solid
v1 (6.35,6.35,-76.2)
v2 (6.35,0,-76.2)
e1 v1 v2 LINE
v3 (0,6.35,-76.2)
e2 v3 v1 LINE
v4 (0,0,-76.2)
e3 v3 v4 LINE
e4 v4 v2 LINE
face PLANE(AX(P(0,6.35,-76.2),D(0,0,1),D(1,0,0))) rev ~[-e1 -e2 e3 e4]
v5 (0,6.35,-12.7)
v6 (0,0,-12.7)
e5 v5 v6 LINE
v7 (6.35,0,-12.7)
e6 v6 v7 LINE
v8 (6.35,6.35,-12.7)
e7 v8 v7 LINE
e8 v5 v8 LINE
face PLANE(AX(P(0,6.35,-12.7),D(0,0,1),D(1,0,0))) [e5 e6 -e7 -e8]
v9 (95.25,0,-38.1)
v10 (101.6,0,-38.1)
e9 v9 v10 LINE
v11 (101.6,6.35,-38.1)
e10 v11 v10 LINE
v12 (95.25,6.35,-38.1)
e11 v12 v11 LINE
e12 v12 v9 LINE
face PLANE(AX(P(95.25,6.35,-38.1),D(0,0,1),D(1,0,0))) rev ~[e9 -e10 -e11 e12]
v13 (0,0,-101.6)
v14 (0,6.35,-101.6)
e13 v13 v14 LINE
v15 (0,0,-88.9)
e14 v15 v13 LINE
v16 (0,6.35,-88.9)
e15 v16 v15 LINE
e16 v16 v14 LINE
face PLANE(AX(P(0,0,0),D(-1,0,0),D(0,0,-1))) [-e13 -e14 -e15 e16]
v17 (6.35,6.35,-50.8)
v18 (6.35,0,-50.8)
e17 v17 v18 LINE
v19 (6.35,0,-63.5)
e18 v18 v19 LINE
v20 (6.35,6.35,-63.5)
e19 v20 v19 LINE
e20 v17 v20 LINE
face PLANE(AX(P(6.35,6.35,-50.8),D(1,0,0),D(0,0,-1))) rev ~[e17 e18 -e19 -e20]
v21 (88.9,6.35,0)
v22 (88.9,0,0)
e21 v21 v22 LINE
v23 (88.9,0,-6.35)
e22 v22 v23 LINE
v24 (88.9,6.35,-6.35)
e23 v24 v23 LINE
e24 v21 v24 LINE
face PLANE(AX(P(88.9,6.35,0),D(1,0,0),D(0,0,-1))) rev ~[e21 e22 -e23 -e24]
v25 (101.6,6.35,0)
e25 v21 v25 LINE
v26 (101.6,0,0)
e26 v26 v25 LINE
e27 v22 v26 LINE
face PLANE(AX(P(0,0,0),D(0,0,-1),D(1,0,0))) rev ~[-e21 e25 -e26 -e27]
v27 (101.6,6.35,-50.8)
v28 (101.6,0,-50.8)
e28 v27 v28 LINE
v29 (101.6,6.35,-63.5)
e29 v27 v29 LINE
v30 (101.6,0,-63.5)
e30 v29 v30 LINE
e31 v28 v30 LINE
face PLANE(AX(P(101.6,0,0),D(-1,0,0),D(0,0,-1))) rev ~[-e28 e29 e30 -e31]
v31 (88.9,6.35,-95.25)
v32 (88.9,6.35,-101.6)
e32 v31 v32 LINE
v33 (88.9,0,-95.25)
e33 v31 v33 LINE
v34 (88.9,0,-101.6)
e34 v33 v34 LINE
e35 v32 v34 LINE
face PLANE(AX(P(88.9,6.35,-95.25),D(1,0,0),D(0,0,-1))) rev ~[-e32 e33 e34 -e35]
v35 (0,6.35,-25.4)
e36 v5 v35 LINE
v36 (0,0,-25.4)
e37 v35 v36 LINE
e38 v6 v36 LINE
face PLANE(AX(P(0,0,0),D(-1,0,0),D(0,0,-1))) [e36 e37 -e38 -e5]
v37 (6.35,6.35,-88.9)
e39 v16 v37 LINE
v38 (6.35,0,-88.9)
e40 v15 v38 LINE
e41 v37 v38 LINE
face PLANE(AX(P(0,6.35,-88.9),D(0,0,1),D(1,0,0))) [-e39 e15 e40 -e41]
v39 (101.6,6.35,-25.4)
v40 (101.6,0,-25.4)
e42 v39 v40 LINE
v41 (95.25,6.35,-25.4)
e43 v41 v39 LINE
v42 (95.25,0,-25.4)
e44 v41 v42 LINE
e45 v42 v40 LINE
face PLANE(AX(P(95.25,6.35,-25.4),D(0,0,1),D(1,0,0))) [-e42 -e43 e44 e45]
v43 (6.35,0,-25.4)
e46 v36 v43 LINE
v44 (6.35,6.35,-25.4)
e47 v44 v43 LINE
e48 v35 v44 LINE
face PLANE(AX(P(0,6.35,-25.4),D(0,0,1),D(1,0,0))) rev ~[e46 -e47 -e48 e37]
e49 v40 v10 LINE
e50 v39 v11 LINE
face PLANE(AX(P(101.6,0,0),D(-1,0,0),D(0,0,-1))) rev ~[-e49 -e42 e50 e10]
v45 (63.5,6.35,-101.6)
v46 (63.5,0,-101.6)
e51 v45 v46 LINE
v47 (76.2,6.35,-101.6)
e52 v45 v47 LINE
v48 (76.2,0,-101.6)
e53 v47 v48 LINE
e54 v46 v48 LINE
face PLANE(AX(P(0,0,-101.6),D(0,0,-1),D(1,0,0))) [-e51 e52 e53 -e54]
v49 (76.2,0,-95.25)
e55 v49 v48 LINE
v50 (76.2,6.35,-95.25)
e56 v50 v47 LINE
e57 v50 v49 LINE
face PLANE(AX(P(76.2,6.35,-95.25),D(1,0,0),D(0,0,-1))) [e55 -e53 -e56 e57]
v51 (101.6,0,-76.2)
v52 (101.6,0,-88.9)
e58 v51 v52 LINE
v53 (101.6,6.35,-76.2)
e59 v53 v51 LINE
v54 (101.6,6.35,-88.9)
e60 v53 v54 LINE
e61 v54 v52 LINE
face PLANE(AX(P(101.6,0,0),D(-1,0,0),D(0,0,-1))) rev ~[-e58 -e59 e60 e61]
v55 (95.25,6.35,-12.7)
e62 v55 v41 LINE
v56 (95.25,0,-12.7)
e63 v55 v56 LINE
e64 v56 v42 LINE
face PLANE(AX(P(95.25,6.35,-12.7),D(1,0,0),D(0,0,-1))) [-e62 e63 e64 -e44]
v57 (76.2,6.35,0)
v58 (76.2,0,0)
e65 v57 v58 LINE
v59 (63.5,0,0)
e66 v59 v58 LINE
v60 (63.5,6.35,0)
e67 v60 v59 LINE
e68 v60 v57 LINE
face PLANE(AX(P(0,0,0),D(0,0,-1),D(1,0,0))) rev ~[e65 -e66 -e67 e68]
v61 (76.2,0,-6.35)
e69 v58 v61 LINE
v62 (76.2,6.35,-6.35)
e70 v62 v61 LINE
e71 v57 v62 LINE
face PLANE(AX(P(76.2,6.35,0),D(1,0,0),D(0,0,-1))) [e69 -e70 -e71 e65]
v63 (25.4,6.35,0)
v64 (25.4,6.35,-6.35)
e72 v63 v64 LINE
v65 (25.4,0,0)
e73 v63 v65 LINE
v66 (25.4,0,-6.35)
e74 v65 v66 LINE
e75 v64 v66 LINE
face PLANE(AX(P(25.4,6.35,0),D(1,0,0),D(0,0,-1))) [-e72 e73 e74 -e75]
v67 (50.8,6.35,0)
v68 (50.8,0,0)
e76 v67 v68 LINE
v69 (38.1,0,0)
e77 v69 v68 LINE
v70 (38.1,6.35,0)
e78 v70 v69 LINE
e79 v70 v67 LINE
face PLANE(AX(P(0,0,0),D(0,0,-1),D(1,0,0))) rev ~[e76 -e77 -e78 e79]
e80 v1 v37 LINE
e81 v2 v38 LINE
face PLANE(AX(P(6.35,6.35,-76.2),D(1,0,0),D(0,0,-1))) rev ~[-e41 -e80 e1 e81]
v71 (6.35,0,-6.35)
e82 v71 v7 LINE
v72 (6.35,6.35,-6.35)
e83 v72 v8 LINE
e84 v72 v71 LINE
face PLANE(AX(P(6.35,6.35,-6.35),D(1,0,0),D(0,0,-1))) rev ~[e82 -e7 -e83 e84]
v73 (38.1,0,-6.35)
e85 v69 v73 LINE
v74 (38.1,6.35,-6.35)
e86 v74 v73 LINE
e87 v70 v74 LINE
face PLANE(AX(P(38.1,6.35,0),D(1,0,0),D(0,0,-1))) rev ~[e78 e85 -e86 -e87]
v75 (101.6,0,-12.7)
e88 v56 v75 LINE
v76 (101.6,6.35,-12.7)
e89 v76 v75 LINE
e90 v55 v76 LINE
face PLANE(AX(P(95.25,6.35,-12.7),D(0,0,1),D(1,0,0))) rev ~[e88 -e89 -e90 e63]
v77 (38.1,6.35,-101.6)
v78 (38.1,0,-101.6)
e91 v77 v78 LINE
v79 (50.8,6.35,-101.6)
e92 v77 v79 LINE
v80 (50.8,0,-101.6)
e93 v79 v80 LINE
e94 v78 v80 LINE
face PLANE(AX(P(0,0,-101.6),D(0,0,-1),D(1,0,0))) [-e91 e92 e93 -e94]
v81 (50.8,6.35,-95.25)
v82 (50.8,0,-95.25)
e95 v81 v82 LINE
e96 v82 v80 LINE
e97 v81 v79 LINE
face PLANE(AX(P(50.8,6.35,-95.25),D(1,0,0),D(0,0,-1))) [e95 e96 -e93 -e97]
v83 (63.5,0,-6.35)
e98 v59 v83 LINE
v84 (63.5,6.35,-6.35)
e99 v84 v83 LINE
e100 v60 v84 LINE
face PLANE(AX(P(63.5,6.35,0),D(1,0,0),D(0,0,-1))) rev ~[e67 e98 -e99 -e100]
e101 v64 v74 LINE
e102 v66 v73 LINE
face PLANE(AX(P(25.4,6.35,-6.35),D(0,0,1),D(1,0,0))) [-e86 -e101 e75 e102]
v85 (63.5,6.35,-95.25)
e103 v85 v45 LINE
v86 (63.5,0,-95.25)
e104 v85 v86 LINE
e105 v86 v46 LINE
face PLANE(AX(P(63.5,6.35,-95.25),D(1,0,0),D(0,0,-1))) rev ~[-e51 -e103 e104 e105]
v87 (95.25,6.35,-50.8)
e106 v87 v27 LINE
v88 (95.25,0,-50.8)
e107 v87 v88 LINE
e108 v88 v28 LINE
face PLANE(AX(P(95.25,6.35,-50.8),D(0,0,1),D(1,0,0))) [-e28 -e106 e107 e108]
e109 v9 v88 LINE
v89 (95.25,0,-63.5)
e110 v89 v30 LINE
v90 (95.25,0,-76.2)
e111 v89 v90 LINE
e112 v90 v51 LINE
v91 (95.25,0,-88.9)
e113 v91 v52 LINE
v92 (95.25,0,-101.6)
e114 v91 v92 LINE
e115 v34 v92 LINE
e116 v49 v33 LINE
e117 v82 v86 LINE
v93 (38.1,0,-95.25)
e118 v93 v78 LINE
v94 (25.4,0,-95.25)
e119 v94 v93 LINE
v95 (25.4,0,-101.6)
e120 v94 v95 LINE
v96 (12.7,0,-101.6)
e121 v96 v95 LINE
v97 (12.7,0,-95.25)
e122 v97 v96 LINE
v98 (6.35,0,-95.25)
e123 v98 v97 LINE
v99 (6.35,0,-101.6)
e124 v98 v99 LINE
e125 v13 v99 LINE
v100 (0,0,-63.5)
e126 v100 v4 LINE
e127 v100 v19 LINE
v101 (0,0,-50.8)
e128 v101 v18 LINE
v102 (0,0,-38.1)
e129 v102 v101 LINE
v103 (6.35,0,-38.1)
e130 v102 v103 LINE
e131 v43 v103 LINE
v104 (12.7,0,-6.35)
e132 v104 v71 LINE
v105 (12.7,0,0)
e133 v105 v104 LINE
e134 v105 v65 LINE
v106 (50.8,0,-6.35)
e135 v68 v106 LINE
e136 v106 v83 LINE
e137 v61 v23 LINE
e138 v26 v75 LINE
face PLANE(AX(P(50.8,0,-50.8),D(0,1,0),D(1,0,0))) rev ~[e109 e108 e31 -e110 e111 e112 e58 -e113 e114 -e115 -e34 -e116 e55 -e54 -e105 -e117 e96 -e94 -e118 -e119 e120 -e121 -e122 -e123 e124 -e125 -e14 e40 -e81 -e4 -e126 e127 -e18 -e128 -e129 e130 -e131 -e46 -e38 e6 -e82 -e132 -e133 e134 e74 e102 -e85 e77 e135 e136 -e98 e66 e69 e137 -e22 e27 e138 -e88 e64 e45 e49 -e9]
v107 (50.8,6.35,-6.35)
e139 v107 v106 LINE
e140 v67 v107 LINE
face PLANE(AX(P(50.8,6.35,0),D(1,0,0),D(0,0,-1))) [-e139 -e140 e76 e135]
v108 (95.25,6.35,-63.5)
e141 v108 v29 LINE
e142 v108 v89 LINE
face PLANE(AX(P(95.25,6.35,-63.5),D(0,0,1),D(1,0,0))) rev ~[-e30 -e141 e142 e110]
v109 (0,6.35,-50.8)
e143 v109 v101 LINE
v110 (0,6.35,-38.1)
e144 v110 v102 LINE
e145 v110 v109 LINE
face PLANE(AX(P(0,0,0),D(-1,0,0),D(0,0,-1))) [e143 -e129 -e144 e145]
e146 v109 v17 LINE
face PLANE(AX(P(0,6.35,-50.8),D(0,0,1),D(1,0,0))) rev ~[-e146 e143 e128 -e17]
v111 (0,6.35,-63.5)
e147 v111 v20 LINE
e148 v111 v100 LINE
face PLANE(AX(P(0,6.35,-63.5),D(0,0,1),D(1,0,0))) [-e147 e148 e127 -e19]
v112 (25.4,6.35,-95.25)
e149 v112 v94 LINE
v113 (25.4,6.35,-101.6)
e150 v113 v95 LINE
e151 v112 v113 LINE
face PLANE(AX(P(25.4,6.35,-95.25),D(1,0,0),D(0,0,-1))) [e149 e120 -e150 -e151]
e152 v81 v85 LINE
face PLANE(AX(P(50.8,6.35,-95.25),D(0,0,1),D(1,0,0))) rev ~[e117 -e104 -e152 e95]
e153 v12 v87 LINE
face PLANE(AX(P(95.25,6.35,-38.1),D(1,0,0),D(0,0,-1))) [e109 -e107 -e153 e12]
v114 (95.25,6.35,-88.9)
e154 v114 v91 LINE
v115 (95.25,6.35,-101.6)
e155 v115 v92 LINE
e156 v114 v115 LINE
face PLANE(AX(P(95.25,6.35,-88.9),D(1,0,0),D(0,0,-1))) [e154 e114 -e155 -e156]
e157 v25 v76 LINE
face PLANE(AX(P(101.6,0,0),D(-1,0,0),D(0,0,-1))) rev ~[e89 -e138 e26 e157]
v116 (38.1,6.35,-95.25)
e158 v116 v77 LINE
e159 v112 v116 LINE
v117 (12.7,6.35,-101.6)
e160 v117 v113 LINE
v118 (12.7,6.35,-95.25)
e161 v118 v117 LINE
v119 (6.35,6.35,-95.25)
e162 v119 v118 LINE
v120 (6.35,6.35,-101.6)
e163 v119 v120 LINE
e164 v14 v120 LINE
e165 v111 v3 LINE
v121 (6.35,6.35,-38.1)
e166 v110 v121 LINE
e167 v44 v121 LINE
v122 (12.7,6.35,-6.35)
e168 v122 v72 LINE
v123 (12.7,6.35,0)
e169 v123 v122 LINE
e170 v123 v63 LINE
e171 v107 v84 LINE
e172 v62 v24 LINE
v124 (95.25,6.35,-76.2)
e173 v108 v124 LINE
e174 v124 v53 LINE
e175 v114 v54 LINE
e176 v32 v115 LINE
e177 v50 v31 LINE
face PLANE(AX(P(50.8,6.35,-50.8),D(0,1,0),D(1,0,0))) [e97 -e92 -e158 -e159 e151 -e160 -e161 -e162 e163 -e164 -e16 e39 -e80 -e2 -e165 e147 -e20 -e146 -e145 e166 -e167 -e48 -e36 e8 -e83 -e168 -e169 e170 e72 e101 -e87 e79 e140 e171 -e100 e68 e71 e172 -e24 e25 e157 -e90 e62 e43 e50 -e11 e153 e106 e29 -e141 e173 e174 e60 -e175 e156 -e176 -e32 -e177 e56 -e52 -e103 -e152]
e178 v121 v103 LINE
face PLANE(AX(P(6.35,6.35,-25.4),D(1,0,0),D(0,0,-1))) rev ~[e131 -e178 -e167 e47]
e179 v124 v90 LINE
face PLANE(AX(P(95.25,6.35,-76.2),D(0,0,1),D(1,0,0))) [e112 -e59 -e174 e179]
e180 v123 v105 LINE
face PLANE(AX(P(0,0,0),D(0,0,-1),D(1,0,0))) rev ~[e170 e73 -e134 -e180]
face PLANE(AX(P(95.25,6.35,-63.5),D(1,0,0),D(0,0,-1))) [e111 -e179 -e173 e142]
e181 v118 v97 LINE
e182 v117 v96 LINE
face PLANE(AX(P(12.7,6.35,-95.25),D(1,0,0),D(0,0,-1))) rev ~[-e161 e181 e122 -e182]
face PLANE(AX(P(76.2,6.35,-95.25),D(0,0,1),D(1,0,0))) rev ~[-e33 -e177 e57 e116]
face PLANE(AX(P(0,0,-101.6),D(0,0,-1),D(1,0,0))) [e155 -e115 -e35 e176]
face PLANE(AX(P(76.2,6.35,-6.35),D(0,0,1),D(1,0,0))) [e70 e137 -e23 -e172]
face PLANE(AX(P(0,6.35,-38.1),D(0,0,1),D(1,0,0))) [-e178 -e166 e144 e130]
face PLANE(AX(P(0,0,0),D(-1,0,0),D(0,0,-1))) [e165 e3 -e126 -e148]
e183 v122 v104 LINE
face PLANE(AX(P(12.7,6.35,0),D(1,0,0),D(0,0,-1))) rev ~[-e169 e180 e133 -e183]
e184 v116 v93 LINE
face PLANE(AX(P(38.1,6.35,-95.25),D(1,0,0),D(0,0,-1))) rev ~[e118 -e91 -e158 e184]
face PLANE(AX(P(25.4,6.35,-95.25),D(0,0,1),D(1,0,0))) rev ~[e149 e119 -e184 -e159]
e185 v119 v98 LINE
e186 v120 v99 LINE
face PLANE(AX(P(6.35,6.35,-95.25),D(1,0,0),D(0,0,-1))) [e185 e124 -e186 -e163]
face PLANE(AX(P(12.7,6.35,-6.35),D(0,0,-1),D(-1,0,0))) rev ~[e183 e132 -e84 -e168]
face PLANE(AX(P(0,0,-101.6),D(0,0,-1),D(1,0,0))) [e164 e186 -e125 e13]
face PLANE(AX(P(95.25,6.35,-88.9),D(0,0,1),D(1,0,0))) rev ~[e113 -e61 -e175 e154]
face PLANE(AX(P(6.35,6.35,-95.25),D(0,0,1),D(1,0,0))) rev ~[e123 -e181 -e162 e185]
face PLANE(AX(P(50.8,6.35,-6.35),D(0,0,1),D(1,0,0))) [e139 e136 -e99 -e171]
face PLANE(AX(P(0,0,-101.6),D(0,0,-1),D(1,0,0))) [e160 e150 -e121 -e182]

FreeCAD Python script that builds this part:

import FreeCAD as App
import Part
import Sketcher
from FreeCAD import Vector
Q = App.Units.Quantity


def add_polygon(sketch, points):
    """Adds a closed chain of lines whose ends are joined by coincident constraints."""
    first, n = sketch.GeometryCount, len(points)
    for a, b in zip(points, points[1:] + points[:1]):
        sketch.addGeometry(Part.LineSegment(App.Vector(*a, 0), App.Vector(*b, 0)), False)
    for i in range(n):
        sketch.addConstraint(Sketcher.Constraint("Coincident", first + i, 2, first + (i + 1) % n, 1))

doc = App.newDocument("Part")
body = doc.addObject("PartDesign::Body", "Body")

sketch1 = doc.addObject("Sketcher::SketchObject", "Sketch")
body.addObject(sketch1)
sketch1.AttachmentSupport = (doc.XZ_Plane, [""])
sketch1.MapMode = "FlatFace"
add_polygon(sketch1, [(0, -102), (0, 0), (102, 0), (102, -102)])
sketch1.addConstraint([
    Sketcher.Constraint("Vertical", 0),
    Sketcher.Constraint("Horizontal", 1),
    Sketcher.Constraint("Vertical", 2),
    Sketcher.Constraint("Horizontal", 3),
    Sketcher.Constraint("Coincident", 0, 2, -1, 1),
    Sketcher.Constraint("Equal", 3, 0),
    Sketcher.Constraint("DistanceX", 1, 1, 1, 2, Q("4 in")),
])
pad1 = doc.addObject("PartDesign::Pad", "Pad")
body.addObject(pad1)
pad1.Profile = sketch1
pad1.Length = Q("0.25 in")
pad1.Reversed = True

sketch2 = doc.addObject("Sketcher::SketchObject", "Sketch001")
body.addObject(sketch2)
sketch2.AttachmentSupport = (doc.XZ_Plane, [""])
sketch2.MapMode = "FlatFace"
sketch2.AttachmentOffset = App.Placement(Vector(0, 0, -0.25 * 25.4), App.Rotation())
add_polygon(sketch2, [(0, -89), (0, -76), (6, -76), (6, -89)])
add_polygon(sketch2, [(0, -64), (0, -51), (6, -51), (6, -64)])
add_polygon(sketch2, [(0, -38), (0, -25), (6, -25), (6, -38)])
add_polygon(sketch2, [(0, -13), (0, -6), (6, -6), (6, -13)])
add_polygon(sketch2, [(95, -102), (95, -89), (102, -89), (102, -102)])
add_polygon(sketch2, [(95, -76), (95, -64), (102, -64), (102, -76)])
add_polygon(sketch2, [(95, -51), (95, -38), (102, -38), (102, -51)])
add_polygon(sketch2, [(95, -25), (95, -13), (102, -13), (102, -25)])
sketch2.addConstraint([
    Sketcher.Constraint("Vertical", 0),
    Sketcher.Constraint("Horizontal", 1),
    Sketcher.Constraint("Vertical", 2),
    Sketcher.Constraint("Horizontal", 3),
    Sketcher.Constraint("Vertical", 4),
    Sketcher.Constraint("Horizontal", 5),
    Sketcher.Constraint("Vertical", 6),
    Sketcher.Constraint("Horizontal", 7),
    Sketcher.Constraint("Vertical", 8),
    Sketcher.Constraint("Horizontal", 9),
    Sketcher.Constraint("Vertical", 10),
    Sketcher.Constraint("Horizontal", 11),
    Sketcher.Constraint("Vertical", 12),
    Sketcher.Constraint("Horizontal", 13),
    Sketcher.Constraint("Vertical", 14),
    Sketcher.Constraint("Horizontal", 15),
    Sketcher.Constraint("Vertical", 16),
    Sketcher.Constraint("Horizontal", 17),
    Sketcher.Constraint("Vertical", 18),
    Sketcher.Constraint("Horizontal", 19),
    Sketcher.Constraint("Vertical", 20),
    Sketcher.Constraint("Horizontal", 21),
    Sketcher.Constraint("Vertical", 22),
    Sketcher.Constraint("Horizontal", 23),
    Sketcher.Constraint("Vertical", 24),
    Sketcher.Constraint("Horizontal", 25),
    Sketcher.Constraint("Vertical", 26),
    Sketcher.Constraint("Horizontal", 27),
    Sketcher.Constraint("Vertical", 28),
    Sketcher.Constraint("Horizontal", 29),
    Sketcher.Constraint("Vertical", 30),
    Sketcher.Constraint("Horizontal", 31),
    Sketcher.Constraint("PointOnObject", 0, 2, -2),
    Sketcher.Constraint("PointOnObject", 4, 2, -2),
    Sketcher.Constraint("PointOnObject", 8, 2, -2),
    Sketcher.Constraint("PointOnObject", 12, 2, -2),
    Sketcher.Constraint("Horizontal", 3, 2, 16, 2),
    Sketcher.Constraint("Horizontal", 7, 2, 20, 2),
    Sketcher.Constraint("Horizontal", 1, 2, 22, 2),
    Sketcher.Constraint("Horizontal", 11, 2, 24, 2),
    Sketcher.Constraint("Horizontal", 5, 2, 26, 2),
    Sketcher.Constraint("Horizontal", 15, 2, 28, 2),
    Sketcher.Constraint("Horizontal", 9, 2, 30, 2),
    Sketcher.Constraint("Vertical", 2, 2, 5, 2),
    Sketcher.Constraint("Vertical", 6, 2, 9, 2),
    Sketcher.Constraint("Vertical", 10, 2, 13, 2),
    Sketcher.Constraint("Vertical", 19, 2, 20, 2),
    Sketcher.Constraint("Vertical", 18, 2, 21, 2),
    Sketcher.Constraint("Vertical", 23, 2, 24, 2),
    Sketcher.Constraint("Vertical", 22, 2, 25, 2),
    Sketcher.Constraint("Vertical", 27, 2, 28, 2),
    Sketcher.Constraint("Vertical", 26, 2, 29, 2),
    Sketcher.Constraint("Equal", 15, 17),
    Sketcher.Constraint("Equal", 2, 4),
    Sketcher.Constraint("Equal", 6, 8),
    Sketcher.Constraint("Equal", 31, 12),
    Sketcher.Constraint("Equal", 10, 16),
    Sketcher.Constraint("Equal", 18, 20),
    Sketcher.Constraint("Equal", 22, 24),
    Sketcher.Constraint("Equal", 26, 28),
    Sketcher.Constraint("DistanceY", 0, 1, 0, 2, Q("0.5 in")),
    Sketcher.Constraint("DistanceY", 0, 2, -1, 1, Q("3 in")),
    Sketcher.Constraint("DistanceX", -1, 1, 17, 2, Q("4 in")),
    Sketcher.Constraint("DistanceX", 1, 1, 1, 2, Q("0.25 in")),
])
pocket1 = doc.addObject("PartDesign::Pocket", "Pocket")
body.addObject(pocket1)
pocket1.Profile = sketch2
pocket1.Type = "ThroughAll"
pocket1.Reversed = True

sketch3 = doc.addObject("Sketcher::SketchObject", "Sketch002")
body.addObject(sketch3)
sketch3.AttachmentSupport = (doc.XZ_Plane, [""])
sketch3.MapMode = "FlatFace"
sketch3.AttachmentOffset = App.Placement(Vector(0, 0, -0.25 * 25.4), App.Rotation())
add_polygon(sketch3, [(6, -102), (6, -95), (13, -95), (13, -102)])
add_polygon(sketch3, [(25, -102), (25, -95), (38, -95), (38, -102)])
add_polygon(sketch3, [(51, -102), (51, -95), (64, -95), (64, -102)])
add_polygon(sketch3, [(76, -102), (76, -95), (89, -95), (89, -102)])
add_polygon(sketch3, [(76, -6), (76, 0), (89, 0), (89, -6)])
add_polygon(sketch3, [(51, -6), (51, 0), (64, 0), (64, -6)])
add_polygon(sketch3, [(25, -6), (25, 0), (38, 0), (38, -6)])
add_polygon(sketch3, [(13, 0), (13, -6), (0, -6), (0, 0)])
sketch3.addConstraint([
    Sketcher.Constraint("Vertical", 0),
    Sketcher.Constraint("Horizontal", 1),
    Sketcher.Constraint("Vertical", 2),
    Sketcher.Constraint("Horizontal", 3),
    Sketcher.Constraint("Vertical", 4),
    Sketcher.Constraint("Horizontal", 5),
    Sketcher.Constraint("Vertical", 6),
    Sketcher.Constraint("Horizontal", 7),
    Sketcher.Constraint("Vertical", 8),
    Sketcher.Constraint("Horizontal", 9),
    Sketcher.Constraint("Vertical", 10),
    Sketcher.Constraint("Horizontal", 11),
    Sketcher.Constraint("Vertical", 12),
    Sketcher.Constraint("Horizontal", 13),
    Sketcher.Constraint("Vertical", 14),
    Sketcher.Constraint("Horizontal", 15),
    Sketcher.Constraint("Vertical", 16),
    Sketcher.Constraint("Horizontal", 17),
    Sketcher.Constraint("Vertical", 18),
    Sketcher.Constraint("Horizontal", 19),
    Sketcher.Constraint("Vertical", 20),
    Sketcher.Constraint("Horizontal", 21),
    Sketcher.Constraint("Vertical", 22),
    Sketcher.Constraint("Horizontal", 23),
    Sketcher.Constraint("Vertical", 24),
    Sketcher.Constraint("Horizontal", 25),
    Sketcher.Constraint("Vertical", 26),
    Sketcher.Constraint("Horizontal", 27),
    Sketcher.Constraint("Vertical", 28),
    Sketcher.Constraint("Horizontal", 29),
    Sketcher.Constraint("Vertical", 30),
    Sketcher.Constraint("Horizontal", 31),
    Sketcher.Constraint("Coincident", 30, 2, -1, 1),
    Sketcher.Constraint("PointOnObject", 16, 2, -1),
    Sketcher.Constraint("PointOnObject", 20, 2, -1),
    Sketcher.Constraint("PointOnObject", 24, 2, -1),
    Sketcher.Constraint("Horizontal", 1, 2, 4, 2),
    Sketcher.Constraint("Horizontal", 3, 2, 6, 2),
    Sketcher.Constraint("Horizontal", 5, 2, 8, 2),
    Sketcher.Constraint("Horizontal", 7, 2, 10, 2),
    Sketcher.Constraint("Horizontal", 9, 2, 12, 2),
    Sketcher.Constraint("Horizontal", 11, 2, 14, 2),
    Sketcher.Constraint("Horizontal", 19, 2, 22, 2),
    Sketcher.Constraint("Horizontal", 23, 2, 26, 2),
    Sketcher.Constraint("Horizontal", 27, 2, 28, 2),
    Sketcher.Constraint("Vertical", 15, 2, 16, 2),
    Sketcher.Constraint("Vertical", 14, 2, 17, 2),
    Sketcher.Constraint("Vertical", 11, 2, 20, 2),
    Sketcher.Constraint("Vertical", 10, 2, 21, 2),
    Sketcher.Constraint("Vertical", 7, 2, 24, 2),
    Sketcher.Constraint("Vertical", 6, 2, 25, 2),
    Sketcher.Constraint("Vertical", 2, 2, 28, 2),
    Sketcher.Constraint("Equal", 7, 9),
    Sketcher.Constraint("Equal", 11, 13),
    Sketcher.Constraint("Equal", 27, 29),
    Sketcher.Constraint("Equal", 3, 0),
    Sketcher.Constraint("Equal", 14, 16),
    Sketcher.Constraint("DistanceX", 5, 1, 5, 2, Q("0.5 in")),
    Sketcher.Constraint("DistanceY", 2, 2, -1, 1, Q("4 in")),
    Sketcher.Constraint("DistanceX", -1, 1, 4, 2, Q("1 in")),
    Sketcher.Constraint("DistanceX", -1, 1, 8, 2, Q("2 in")),
    Sketcher.Constraint("DistanceX", -1, 1, 12, 2, Q("3 in")),
    Sketcher.Constraint("DistanceX", 1, 1, 1, 2, Q("0.25 in")),
])
pocket2 = doc.addObject("PartDesign::Pocket", "Pocket001")
body.addObject(pocket2)
pocket2.Profile = sketch3
pocket2.Length = Q("0.25 in")
pocket2.Reversed = True

doc.recompute()
